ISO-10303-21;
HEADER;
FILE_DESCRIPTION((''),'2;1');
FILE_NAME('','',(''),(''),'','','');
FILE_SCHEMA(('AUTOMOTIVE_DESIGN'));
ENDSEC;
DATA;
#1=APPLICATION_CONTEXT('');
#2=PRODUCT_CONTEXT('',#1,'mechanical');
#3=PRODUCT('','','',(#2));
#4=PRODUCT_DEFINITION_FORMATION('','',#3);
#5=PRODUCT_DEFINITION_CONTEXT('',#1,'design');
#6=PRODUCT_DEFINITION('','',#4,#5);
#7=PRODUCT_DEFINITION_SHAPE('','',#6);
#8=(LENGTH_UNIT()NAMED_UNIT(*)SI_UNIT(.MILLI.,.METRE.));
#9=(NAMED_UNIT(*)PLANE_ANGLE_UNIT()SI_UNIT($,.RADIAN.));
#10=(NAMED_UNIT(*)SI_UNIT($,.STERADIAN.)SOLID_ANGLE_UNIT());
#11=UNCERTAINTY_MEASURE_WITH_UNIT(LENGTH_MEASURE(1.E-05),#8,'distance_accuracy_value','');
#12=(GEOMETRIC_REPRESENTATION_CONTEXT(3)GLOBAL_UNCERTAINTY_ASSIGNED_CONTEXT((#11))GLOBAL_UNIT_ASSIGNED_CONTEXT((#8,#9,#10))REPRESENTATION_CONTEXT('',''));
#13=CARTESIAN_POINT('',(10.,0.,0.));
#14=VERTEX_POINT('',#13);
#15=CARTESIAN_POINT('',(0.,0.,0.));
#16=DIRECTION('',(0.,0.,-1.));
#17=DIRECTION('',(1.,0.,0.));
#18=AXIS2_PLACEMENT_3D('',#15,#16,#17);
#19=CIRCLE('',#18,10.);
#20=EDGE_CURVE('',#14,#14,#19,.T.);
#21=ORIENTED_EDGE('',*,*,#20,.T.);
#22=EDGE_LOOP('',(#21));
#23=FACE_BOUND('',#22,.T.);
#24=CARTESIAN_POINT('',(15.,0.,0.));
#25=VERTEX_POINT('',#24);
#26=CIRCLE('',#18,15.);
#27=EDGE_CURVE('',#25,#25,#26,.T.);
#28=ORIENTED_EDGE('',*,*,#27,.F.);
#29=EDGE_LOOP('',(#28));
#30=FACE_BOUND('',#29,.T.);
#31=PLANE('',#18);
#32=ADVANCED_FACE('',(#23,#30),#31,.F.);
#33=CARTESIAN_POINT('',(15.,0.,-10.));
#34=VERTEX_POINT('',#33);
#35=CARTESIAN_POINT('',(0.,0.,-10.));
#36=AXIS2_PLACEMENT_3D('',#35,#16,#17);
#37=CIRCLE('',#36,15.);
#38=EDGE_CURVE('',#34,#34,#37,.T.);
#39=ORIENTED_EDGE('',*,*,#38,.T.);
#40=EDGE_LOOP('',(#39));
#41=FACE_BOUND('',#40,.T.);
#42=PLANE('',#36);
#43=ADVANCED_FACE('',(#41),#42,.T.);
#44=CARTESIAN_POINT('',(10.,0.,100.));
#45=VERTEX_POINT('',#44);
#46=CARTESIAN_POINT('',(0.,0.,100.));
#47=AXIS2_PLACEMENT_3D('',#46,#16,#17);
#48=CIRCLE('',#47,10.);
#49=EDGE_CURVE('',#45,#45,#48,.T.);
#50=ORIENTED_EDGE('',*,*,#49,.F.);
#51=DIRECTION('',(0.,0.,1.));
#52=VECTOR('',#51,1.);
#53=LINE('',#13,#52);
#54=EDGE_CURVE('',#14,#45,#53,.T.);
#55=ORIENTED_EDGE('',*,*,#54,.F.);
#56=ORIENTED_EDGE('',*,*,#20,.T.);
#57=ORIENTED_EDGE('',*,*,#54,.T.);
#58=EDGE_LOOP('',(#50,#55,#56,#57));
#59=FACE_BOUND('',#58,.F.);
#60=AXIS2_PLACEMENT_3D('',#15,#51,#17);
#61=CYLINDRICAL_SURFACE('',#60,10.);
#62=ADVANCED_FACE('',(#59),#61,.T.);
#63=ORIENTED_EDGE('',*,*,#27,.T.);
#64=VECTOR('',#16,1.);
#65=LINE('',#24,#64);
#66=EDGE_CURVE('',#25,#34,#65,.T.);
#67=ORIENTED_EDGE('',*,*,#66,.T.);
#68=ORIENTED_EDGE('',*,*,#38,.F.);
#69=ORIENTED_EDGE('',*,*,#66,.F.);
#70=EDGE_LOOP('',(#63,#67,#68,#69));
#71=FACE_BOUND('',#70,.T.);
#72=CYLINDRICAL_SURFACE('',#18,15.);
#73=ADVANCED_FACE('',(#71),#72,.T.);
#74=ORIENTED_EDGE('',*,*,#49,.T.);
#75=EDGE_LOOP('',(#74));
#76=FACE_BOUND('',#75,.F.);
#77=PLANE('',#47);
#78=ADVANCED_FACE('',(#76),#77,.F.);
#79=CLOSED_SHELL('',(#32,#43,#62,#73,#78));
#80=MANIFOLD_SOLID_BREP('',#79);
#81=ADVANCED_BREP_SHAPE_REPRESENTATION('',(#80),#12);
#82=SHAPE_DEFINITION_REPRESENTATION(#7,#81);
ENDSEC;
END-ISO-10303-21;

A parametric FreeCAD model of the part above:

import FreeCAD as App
import Part
import Sketcher

V = App.Vector
Q = App.Units.Quantity

doc = App.newDocument("Part")
params = doc.addObject("Spreadsheet::Sheet", "Params")
for row, (alias, value) in enumerate([
    ("sketch1_width", "10 mm"),
    ("sketch1_width2", "15 mm"),
    ("sketch1_height", "100 mm"),
    ("revolution_angle", "360 deg"),
], start=1):
    params.set(f"A{row}", alias)
    params.set(f"B{row}", "=" + value)
    params.setAlias(f"B{row}", alias)

body = doc.addObject("PartDesign::Body", "Body")

# Sketch on XZ plane
sketch1 = body.newObject("Sketcher::SketchObject", "Sketch")
sketch1.AttachmentSupport = (doc.getObject("XZ_Plane"), [""])
sketch1.MapMode = "FlatFace"
sketch1.addGeometry(Part.LineSegment(V(0, -10, 0), V(0, 100, 0)), False)
sketch1.addGeometry(Part.LineSegment(V(0, 100, 0), V(10, 100, 0)), False)
sketch1.addGeometry(Part.LineSegment(V(10, 100, 0), V(10, 0, 0)), False)
sketch1.addGeometry(Part.LineSegment(V(10, 0, 0), V(15, 0, 0)), False)
sketch1.addGeometry(Part.LineSegment(V(15, 0, 0), V(15, -10, 0)), False)
sketch1.addGeometry(Part.LineSegment(V(15, -10, 0), V(0, -10, 0)), False)
sketch1.addConstraint(Sketcher.Constraint("Coincident", 0, 2, 1, 1))
sketch1.addConstraint(Sketcher.Constraint("Coincident", 1, 2, 2, 1))
sketch1.addConstraint(Sketcher.Constraint("Coincident", 2, 2, 3, 1))
sketch1.addConstraint(Sketcher.Constraint("Coincident", 3, 2, 4, 1))
sketch1.addConstraint(Sketcher.Constraint("Coincident", 4, 2, 5, 1))
sketch1.addConstraint(Sketcher.Constraint("Coincident", 5, 2, 0, 1))
sketch1.addConstraint(Sketcher.Constraint("Vertical", 0))
sketch1.addConstraint(Sketcher.Constraint("Horizontal", 1))
sketch1.addConstraint(Sketcher.Constraint("Vertical", 2))
sketch1.addConstraint(Sketcher.Constraint("Horizontal", 3))
sketch1.addConstraint(Sketcher.Constraint("Vertical", 4))
sketch1.addConstraint(Sketcher.Constraint("Horizontal", 5))
sketch1.addConstraint(Sketcher.Constraint("PointOnObject", 0, 2, -2))
sketch1.addConstraint(Sketcher.Constraint("PointOnObject", 2, 2, -1))
sketch1.addConstraint(Sketcher.Constraint("Equal", 1, 4))
sketch1.addConstraint(Sketcher.Constraint("DistanceX", 1, 1, 1, 2, Q("10 mm")))
sketch1.addConstraint(Sketcher.Constraint("DistanceX", 5, 2, 5, 1, Q("15 mm")))
sketch1.addConstraint(Sketcher.Constraint("DistanceY", 2, 2, 2, 1, Q("100 mm")))
sketch1.setExpression("Constraints[15]", "Params.sketch1_width")
sketch1.setExpression("Constraints[16]", "Params.sketch1_width2")
sketch1.setExpression("Constraints[17]", "Params.sketch1_height")
revolution = body.newObject("PartDesign::Revolution", "Revolution")
revolution.Profile = sketch1
revolution.ReferenceAxis = (sketch1, ["V_Axis"])
revolution.setExpression("Angle", "Params.revolution_angle")

doc.recompute()
